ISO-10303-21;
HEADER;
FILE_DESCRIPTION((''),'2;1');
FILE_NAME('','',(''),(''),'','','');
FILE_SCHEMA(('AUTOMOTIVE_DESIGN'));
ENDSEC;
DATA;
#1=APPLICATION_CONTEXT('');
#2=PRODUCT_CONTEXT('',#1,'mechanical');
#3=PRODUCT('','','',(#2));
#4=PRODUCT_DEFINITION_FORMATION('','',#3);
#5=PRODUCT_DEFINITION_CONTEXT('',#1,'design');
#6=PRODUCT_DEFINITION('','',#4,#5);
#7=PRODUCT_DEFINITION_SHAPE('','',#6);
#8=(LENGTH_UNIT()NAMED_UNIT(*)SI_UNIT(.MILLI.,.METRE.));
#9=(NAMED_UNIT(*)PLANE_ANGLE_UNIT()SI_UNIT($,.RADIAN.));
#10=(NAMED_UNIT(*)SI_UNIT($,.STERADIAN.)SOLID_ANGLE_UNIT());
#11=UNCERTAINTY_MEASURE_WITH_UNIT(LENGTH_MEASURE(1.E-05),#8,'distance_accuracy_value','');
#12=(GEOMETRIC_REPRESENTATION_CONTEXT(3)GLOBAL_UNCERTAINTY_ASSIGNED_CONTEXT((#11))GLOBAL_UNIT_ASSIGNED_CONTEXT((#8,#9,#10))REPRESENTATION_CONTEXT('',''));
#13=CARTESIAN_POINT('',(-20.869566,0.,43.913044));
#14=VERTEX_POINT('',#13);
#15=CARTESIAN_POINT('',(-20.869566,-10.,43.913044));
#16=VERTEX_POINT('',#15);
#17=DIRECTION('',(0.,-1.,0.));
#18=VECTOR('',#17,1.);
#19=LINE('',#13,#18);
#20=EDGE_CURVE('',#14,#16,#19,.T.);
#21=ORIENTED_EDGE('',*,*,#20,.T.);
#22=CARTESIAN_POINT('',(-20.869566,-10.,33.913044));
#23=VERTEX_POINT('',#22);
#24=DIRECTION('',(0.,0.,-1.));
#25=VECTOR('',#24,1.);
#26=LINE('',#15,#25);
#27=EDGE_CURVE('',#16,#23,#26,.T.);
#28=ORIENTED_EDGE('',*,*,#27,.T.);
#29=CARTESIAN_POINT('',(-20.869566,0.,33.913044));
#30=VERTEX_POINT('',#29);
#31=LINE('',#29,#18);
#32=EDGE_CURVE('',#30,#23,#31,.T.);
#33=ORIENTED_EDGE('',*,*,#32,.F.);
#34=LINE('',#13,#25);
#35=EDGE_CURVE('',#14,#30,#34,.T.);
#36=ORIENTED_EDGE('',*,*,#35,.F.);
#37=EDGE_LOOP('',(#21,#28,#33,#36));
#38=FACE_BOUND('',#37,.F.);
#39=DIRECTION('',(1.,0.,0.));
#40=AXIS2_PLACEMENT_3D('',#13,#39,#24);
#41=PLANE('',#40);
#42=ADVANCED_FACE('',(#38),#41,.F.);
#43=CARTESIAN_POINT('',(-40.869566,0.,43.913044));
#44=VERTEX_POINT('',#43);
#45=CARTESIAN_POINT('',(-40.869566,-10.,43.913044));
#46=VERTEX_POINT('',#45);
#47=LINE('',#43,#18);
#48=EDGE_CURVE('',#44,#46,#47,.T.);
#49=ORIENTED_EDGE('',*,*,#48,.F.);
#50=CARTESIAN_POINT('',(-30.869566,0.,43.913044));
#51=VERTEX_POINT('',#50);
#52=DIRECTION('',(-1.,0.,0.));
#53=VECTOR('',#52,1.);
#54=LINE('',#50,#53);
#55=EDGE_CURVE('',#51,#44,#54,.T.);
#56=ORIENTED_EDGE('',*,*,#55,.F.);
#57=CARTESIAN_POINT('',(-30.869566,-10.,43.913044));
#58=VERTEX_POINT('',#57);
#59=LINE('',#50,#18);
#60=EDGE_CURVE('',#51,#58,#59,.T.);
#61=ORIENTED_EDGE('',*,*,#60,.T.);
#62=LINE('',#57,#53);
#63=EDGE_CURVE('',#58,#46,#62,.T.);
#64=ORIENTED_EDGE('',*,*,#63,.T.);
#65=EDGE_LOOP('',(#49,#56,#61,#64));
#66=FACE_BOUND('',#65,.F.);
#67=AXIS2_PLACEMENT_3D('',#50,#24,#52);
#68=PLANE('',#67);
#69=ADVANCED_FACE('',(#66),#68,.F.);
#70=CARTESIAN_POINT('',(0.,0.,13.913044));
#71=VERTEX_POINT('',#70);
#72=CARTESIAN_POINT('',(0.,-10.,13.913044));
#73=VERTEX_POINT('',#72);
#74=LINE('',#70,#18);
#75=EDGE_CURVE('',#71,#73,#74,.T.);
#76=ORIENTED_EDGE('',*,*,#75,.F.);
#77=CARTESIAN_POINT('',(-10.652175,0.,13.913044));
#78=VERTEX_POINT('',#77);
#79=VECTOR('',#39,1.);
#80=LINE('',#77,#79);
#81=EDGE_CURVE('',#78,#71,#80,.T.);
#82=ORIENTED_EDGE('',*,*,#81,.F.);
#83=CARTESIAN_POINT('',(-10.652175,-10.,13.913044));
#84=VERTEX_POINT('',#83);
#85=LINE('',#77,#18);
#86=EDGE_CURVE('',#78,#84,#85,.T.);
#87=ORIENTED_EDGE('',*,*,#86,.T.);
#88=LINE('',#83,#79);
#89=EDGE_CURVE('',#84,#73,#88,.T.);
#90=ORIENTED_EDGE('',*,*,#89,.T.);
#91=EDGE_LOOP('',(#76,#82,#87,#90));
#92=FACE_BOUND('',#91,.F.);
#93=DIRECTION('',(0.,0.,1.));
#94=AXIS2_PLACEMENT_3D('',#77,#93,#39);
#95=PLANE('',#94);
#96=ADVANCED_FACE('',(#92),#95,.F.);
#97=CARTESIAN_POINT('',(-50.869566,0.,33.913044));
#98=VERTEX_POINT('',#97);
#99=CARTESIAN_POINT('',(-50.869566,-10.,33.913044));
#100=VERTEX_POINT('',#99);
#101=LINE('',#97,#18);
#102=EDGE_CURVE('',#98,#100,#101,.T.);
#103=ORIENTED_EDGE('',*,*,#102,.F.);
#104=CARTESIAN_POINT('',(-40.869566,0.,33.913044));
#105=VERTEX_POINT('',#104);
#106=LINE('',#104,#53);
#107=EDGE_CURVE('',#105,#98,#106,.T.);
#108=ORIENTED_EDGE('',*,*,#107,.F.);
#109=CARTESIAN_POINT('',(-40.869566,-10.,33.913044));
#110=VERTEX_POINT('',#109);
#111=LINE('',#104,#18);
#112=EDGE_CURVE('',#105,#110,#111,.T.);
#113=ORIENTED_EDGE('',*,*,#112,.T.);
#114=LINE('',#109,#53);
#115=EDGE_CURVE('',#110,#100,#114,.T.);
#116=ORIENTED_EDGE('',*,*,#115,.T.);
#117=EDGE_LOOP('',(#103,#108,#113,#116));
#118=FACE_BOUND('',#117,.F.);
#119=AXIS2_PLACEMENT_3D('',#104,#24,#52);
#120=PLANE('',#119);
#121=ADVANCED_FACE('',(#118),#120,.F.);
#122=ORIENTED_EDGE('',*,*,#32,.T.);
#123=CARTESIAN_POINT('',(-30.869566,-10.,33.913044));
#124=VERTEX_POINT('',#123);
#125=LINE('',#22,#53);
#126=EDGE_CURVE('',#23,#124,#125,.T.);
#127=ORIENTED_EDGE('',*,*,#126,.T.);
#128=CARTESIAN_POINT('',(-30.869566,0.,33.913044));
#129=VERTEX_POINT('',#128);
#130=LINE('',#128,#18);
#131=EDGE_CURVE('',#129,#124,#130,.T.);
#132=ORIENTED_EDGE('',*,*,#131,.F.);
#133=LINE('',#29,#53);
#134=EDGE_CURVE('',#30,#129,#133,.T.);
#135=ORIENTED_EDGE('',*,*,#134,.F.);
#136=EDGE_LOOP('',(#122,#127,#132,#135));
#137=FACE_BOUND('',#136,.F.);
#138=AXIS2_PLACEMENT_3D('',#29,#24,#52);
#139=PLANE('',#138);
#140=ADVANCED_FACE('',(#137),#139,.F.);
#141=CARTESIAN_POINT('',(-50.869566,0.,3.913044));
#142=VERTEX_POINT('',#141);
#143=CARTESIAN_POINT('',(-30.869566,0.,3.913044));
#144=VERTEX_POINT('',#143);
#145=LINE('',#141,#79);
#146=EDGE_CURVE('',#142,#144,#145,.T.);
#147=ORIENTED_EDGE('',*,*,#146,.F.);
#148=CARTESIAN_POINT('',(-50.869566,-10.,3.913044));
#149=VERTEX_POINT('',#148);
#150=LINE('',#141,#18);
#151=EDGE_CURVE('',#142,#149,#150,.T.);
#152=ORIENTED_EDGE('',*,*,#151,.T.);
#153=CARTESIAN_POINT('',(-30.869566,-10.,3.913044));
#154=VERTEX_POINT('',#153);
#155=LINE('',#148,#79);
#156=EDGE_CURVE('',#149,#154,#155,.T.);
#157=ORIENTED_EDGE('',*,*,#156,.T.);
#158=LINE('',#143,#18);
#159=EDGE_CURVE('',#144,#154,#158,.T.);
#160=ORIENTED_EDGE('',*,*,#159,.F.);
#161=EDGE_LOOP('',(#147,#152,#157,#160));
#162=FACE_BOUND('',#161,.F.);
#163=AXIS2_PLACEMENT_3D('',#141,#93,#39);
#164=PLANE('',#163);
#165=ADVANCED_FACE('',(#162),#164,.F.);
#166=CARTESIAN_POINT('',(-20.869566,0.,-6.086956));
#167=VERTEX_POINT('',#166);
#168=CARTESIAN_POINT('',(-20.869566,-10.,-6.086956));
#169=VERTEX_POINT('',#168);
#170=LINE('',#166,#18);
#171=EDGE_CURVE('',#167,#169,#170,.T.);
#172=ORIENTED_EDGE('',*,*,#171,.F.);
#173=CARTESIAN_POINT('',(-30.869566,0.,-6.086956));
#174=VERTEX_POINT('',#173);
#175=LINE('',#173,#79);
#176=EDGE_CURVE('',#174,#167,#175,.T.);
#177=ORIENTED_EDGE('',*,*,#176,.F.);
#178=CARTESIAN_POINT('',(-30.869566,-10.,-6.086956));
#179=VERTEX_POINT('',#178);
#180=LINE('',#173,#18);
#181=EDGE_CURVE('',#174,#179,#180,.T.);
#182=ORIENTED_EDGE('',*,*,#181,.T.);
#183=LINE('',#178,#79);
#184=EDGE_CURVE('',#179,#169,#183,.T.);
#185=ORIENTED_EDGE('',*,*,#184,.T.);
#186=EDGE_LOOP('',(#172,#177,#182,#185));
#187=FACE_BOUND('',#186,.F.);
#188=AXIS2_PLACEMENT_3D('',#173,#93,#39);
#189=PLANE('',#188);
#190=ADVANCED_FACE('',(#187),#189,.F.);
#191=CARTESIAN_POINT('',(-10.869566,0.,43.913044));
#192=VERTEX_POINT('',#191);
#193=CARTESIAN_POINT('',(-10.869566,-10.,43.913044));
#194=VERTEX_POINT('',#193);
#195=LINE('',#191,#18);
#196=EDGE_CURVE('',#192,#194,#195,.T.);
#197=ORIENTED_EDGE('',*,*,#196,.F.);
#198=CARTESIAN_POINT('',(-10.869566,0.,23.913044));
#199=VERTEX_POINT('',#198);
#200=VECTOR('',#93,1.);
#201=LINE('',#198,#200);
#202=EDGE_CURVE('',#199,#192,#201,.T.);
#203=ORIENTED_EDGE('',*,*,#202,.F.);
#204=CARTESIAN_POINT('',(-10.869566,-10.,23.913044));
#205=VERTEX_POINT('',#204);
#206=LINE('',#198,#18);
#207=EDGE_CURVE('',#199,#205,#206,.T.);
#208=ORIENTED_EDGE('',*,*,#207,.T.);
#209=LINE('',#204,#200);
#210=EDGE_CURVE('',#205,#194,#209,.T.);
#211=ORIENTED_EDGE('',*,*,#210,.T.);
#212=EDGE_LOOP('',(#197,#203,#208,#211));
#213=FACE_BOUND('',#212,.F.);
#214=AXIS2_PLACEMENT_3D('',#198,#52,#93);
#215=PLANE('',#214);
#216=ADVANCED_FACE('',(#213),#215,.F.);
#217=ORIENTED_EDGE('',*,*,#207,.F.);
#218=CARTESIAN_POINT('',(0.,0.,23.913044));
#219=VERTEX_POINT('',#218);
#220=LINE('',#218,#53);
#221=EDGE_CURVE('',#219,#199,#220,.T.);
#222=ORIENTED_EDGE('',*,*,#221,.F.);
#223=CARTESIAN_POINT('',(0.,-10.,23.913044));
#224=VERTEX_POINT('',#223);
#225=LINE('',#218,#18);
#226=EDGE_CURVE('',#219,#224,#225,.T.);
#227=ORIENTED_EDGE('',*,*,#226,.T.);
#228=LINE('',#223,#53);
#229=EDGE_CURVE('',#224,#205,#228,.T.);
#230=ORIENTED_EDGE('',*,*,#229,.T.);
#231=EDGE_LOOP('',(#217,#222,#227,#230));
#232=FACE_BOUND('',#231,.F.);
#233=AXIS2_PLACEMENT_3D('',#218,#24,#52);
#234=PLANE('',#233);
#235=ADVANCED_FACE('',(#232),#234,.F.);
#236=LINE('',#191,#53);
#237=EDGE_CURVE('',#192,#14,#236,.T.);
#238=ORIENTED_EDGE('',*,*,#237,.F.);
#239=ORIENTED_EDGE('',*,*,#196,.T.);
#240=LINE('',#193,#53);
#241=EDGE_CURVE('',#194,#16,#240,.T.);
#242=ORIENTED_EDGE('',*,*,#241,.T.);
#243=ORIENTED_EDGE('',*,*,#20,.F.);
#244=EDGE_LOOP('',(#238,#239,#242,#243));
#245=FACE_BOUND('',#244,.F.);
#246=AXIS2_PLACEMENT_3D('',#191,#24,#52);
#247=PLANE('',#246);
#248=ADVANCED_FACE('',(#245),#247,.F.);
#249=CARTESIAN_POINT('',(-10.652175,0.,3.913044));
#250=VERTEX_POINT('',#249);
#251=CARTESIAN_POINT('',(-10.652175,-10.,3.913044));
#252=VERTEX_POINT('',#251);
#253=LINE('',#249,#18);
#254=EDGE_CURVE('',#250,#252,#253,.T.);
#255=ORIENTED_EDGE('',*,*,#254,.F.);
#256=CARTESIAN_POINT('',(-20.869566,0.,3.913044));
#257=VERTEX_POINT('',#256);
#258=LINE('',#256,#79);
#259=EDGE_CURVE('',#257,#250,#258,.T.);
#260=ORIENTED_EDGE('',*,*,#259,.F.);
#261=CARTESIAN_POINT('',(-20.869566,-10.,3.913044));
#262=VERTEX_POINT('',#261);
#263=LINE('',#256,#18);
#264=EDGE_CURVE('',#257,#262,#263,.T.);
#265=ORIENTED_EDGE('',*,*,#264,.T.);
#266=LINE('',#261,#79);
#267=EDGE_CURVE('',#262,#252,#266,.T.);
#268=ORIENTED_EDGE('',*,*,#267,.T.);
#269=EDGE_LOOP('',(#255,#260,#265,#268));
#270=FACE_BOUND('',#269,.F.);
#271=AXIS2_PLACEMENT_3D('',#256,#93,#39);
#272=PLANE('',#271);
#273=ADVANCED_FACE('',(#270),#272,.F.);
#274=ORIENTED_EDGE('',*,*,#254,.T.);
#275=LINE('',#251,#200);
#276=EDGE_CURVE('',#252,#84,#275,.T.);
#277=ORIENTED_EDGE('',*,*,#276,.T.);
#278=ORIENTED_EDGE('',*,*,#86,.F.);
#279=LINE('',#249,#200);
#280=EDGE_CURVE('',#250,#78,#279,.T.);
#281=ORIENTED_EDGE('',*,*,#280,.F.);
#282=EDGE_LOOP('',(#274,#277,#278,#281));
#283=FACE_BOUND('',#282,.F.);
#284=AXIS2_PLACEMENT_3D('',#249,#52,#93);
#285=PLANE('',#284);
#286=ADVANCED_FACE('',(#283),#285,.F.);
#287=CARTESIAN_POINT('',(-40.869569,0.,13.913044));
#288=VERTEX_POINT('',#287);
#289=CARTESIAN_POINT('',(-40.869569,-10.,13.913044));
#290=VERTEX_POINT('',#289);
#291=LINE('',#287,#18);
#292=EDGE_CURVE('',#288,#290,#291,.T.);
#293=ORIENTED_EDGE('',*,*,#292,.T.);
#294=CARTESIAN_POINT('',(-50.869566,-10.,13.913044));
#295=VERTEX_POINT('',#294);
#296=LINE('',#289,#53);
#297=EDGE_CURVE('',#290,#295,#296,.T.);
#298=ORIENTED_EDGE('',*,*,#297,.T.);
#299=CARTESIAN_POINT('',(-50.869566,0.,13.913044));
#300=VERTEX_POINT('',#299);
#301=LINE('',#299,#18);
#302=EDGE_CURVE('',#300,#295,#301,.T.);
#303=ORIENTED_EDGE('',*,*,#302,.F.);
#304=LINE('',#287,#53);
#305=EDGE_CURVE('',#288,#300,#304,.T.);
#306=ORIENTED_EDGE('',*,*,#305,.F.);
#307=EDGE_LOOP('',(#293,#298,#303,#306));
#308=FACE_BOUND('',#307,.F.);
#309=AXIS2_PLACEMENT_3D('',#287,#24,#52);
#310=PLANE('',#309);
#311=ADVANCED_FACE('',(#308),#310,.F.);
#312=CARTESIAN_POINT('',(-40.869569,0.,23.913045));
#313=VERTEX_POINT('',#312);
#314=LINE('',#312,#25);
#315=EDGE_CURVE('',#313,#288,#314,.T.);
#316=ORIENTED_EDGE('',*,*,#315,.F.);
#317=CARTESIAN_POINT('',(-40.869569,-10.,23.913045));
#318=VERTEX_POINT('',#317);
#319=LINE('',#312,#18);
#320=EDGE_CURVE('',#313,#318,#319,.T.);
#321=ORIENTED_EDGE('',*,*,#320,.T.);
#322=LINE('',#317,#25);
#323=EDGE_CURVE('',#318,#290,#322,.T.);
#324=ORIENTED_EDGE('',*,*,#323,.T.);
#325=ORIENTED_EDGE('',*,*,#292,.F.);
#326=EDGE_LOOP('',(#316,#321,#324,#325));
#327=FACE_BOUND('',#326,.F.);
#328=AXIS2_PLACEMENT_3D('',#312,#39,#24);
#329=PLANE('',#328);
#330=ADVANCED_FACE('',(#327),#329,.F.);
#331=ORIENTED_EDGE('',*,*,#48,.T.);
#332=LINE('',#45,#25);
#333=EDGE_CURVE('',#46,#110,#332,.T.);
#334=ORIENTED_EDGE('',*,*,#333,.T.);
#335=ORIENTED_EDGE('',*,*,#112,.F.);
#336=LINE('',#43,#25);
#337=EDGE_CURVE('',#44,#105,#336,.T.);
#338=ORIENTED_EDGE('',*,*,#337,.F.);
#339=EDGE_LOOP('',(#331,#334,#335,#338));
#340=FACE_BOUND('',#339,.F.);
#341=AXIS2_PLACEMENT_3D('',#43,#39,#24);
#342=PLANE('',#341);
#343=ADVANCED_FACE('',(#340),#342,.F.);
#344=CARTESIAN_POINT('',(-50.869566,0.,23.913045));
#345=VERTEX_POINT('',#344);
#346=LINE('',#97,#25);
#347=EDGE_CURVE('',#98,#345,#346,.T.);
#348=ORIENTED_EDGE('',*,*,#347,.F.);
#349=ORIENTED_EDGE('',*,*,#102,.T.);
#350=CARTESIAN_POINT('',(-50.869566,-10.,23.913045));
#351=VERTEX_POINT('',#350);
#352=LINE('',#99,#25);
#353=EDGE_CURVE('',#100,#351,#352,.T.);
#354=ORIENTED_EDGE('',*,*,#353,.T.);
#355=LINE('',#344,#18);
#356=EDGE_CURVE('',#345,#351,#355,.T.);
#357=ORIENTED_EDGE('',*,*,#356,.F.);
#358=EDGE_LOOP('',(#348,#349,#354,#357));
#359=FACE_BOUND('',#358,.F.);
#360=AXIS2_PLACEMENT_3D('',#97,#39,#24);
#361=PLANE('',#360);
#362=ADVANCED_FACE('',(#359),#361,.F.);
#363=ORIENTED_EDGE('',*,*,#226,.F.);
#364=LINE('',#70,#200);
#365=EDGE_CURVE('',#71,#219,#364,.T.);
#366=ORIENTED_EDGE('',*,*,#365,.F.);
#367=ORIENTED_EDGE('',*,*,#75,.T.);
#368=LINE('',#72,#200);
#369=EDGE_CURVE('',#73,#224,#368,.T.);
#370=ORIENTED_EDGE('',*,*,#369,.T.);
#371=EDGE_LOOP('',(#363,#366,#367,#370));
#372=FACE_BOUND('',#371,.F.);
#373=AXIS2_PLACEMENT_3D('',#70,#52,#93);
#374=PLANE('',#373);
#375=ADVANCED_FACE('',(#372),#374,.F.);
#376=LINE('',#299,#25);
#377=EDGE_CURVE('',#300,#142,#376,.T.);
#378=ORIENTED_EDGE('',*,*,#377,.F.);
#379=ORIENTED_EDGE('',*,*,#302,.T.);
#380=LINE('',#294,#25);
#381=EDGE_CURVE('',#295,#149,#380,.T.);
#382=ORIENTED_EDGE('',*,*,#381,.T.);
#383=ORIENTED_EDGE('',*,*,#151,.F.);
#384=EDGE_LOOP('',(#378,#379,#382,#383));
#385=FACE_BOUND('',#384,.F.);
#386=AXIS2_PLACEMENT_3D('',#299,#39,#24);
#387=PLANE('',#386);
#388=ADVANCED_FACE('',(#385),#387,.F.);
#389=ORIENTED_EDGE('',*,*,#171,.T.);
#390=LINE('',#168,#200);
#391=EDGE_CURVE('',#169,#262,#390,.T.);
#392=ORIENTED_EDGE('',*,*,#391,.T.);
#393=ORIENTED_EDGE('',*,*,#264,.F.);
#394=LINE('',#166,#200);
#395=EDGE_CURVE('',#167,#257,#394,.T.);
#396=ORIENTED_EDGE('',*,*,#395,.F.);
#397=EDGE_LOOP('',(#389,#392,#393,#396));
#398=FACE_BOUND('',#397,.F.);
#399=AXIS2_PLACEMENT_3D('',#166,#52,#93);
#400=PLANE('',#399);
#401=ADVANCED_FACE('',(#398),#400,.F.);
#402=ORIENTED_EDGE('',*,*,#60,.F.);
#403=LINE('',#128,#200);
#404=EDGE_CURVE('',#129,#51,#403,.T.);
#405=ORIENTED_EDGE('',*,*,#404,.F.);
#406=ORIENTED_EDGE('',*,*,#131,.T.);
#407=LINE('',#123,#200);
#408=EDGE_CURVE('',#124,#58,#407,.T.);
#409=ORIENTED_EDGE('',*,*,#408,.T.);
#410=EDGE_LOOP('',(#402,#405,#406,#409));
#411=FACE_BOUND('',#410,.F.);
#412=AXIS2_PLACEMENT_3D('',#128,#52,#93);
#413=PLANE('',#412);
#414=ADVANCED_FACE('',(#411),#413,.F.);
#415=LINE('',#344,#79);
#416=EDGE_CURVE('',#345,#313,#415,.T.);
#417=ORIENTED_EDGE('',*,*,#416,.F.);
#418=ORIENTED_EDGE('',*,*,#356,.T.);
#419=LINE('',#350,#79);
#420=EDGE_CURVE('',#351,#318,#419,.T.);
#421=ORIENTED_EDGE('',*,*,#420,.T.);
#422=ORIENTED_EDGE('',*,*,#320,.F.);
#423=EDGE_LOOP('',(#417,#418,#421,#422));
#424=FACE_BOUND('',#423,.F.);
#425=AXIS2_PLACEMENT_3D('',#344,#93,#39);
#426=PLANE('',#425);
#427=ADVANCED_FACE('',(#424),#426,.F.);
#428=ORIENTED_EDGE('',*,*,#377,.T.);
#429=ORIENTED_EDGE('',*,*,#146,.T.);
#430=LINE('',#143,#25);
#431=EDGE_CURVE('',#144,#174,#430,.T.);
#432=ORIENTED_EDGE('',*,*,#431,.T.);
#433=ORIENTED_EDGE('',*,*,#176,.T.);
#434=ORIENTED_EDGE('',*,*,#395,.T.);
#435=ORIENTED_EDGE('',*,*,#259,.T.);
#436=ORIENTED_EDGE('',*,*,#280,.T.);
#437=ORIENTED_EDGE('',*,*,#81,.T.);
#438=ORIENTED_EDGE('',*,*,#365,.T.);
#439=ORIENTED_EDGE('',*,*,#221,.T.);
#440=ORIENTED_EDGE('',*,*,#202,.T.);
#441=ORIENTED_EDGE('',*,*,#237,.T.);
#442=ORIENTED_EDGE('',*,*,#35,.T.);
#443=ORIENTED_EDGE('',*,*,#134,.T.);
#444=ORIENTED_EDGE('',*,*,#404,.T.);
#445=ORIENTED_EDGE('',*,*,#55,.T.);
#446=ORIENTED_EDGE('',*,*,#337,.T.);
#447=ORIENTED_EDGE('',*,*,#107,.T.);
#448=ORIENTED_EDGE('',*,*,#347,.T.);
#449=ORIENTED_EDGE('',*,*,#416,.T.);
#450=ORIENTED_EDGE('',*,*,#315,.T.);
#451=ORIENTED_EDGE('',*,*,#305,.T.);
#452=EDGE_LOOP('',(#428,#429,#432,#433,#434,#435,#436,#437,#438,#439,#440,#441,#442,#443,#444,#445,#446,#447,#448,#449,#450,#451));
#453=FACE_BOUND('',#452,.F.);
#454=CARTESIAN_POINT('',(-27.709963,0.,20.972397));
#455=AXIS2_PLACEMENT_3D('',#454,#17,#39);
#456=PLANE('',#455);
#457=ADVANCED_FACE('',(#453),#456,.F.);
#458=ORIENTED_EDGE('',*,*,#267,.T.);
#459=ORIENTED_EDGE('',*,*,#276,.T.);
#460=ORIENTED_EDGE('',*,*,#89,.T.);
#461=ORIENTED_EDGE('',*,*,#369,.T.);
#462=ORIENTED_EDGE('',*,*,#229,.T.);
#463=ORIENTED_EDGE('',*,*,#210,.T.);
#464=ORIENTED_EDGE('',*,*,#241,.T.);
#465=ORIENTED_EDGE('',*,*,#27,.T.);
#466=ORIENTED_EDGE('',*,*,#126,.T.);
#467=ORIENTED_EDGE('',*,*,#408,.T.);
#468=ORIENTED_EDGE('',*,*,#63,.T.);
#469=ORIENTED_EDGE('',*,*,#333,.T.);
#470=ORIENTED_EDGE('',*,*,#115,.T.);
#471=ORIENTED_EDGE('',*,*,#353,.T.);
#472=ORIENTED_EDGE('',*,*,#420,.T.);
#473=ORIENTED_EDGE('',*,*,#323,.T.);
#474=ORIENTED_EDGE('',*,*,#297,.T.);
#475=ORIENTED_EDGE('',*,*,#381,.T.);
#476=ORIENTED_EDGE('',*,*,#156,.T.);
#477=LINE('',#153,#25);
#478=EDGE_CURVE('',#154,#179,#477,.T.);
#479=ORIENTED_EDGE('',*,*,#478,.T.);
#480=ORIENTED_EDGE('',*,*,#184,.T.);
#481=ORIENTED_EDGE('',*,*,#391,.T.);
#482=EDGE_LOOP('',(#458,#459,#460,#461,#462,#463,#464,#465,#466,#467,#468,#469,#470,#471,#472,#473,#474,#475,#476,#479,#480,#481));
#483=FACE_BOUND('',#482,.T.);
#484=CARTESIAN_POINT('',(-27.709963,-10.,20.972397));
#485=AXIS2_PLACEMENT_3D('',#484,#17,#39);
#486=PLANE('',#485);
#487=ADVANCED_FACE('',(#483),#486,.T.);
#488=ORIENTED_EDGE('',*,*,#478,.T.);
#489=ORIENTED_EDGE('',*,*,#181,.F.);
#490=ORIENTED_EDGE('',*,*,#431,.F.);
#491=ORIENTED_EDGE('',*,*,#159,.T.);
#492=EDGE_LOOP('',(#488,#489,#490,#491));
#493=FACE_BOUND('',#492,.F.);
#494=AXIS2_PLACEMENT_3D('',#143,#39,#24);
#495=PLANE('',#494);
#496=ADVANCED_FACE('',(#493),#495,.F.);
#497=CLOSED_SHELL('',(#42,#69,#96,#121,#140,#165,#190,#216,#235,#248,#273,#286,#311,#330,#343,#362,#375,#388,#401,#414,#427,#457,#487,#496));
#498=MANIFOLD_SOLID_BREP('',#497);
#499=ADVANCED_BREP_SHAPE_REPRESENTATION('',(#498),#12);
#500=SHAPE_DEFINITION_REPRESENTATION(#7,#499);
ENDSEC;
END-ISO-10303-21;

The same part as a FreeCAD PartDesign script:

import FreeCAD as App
import Part
import Sketcher
from FreeCAD import Vector


def add_polygon(sketch, points):
    """Adds a closed chain of lines whose ends are joined by coincident constraints."""
    first, n = sketch.GeometryCount, len(points)
    for a, b in zip(points, points[1:] + points[:1]):
        sketch.addGeometry(Part.LineSegment(App.Vector(*a, 0), App.Vector(*b, 0)), False)
    for i in range(n):
        sketch.addConstraint(Sketcher.Constraint("Coincident", first + i, 2, first + (i + 1) % n, 1))

doc = App.newDocument("Part")
body = doc.addObject("PartDesign::Body", "Body")

# Sketch on XZ plane
sketch1 = body.newObject("Sketcher::SketchObject", "Sketch")
sketch1.AttachmentSupport = (doc.getObject("XZ_Plane"), [""])
sketch1.MapMode = "FlatFace"
add_polygon(sketch1, [(-41, 34), (-51, 34), (-51, 24), (-41, 24), (-41, 14), (-51, 14), (-51, 4), (-31, 4), (-31, -6), (-21, -6), (-21, 4), (-11, 4), (-11, 14), (0, 14), (0, 24), (-11, 24), (-11, 44), (-21, 44), (-21, 34), (-31, 34), (-31, 44), (-41, 44)])  # lines 0-21
sketch1.addConstraint(Sketcher.Constraint("Horizontal", 0))
sketch1.addConstraint(Sketcher.Constraint("Vertical", 1))
sketch1.addConstraint(Sketcher.Constraint("Horizontal", 2))
sketch1.addConstraint(Sketcher.Constraint("Vertical", 3))
sketch1.addConstraint(Sketcher.Constraint("Horizontal", 4))
sketch1.addConstraint(Sketcher.Constraint("Vertical", 5))
sketch1.addConstraint(Sketcher.Constraint("Horizontal", 6))
sketch1.addConstraint(Sketcher.Constraint("Vertical", 7))
sketch1.addConstraint(Sketcher.Constraint("Horizontal", 8))
sketch1.addConstraint(Sketcher.Constraint("Vertical", 9))
sketch1.addConstraint(Sketcher.Constraint("Horizontal", 10))
sketch1.addConstraint(Sketcher.Constraint("Vertical", 11))
sketch1.addConstraint(Sketcher.Constraint("Horizontal", 12))
sketch1.addConstraint(Sketcher.Constraint("Vertical", 13))
sketch1.addConstraint(Sketcher.Constraint("Horizontal", 14))
sketch1.addConstraint(Sketcher.Constraint("Vertical", 15))
sketch1.addConstraint(Sketcher.Constraint("Horizontal", 16))
sketch1.addConstraint(Sketcher.Constraint("Vertical", 17))
sketch1.addConstraint(Sketcher.Constraint("Horizontal", 18))
sketch1.addConstraint(Sketcher.Constraint("Vertical", 19))
sketch1.addConstraint(Sketcher.Constraint("Horizontal", 20))
sketch1.addConstraint(Sketcher.Constraint("Vertical", 21))
sketch1.addConstraint(Sketcher.Constraint("PointOnObject", 12, 2, -2))
sketch1.addConstraint(Sketcher.Constraint("Horizontal", 6, 2, 9, 2))
sketch1.addConstraint(Sketcher.Constraint("Horizontal", 4, 2, 11, 2))
sketch1.addConstraint(Sketcher.Constraint("Horizontal", 2, 2, 13, 2))
sketch1.addConstraint(Sketcher.Constraint("Horizontal", 0, 2, 17, 2))
sketch1.addConstraint(Sketcher.Constraint("Horizontal", 16, 2, 19, 2))
sketch1.addConstraint(Sketcher.Constraint("Vertical", 1, 2, 4, 2))
sketch1.addConstraint(Sketcher.Constraint("Vertical", 9, 2, 16, 2))
sketch1.addConstraint(Sketcher.Constraint("Vertical", 7, 2, 18, 2))
sketch1.addConstraint(Sketcher.Constraint("Equal", 0, 8))
sketch1.addConstraint(Sketcher.Constraint("Equal", 8, 16))
sketch1.addConstraint(Sketcher.Constraint("Equal", 18, 20))
sketch1.addConstraint(Sketcher.Constraint("Equal", 20, 1))
sketch1.addConstraint(Sketcher.Constraint("Equal", 20, 3))
sketch1.addConstraint(Sketcher.Constraint("Equal", 3, 5))
sketch1.addConstraint(Sketcher.Constraint("Equal", 5, 7))
sketch1.addConstraint(Sketcher.Constraint("Equal", 6, 15))
sketch1.addConstraint(Sketcher.Constraint("DistanceX", 0, 2, 0, 1, 10.0))
sketch1.addConstraint(Sketcher.Constraint("DistanceX", 10, 1, 10, 2, 10.217391))
sketch1.addConstraint(Sketcher.Constraint("DistanceX", 2, 1, 2, 2, 9.999997))
sketch1.addConstraint(Sketcher.Constraint("DistanceX", 12, 1, 12, 2, 10.652175))
sketch1.addConstraint(Sketcher.Constraint("DistanceY", -1, 1, 0, 2, 33.913044))
pad1 = body.newObject("PartDesign::Pad", "Pad")
pad1.Profile = sketch1
pad1.Length = 10

doc.recompute()
